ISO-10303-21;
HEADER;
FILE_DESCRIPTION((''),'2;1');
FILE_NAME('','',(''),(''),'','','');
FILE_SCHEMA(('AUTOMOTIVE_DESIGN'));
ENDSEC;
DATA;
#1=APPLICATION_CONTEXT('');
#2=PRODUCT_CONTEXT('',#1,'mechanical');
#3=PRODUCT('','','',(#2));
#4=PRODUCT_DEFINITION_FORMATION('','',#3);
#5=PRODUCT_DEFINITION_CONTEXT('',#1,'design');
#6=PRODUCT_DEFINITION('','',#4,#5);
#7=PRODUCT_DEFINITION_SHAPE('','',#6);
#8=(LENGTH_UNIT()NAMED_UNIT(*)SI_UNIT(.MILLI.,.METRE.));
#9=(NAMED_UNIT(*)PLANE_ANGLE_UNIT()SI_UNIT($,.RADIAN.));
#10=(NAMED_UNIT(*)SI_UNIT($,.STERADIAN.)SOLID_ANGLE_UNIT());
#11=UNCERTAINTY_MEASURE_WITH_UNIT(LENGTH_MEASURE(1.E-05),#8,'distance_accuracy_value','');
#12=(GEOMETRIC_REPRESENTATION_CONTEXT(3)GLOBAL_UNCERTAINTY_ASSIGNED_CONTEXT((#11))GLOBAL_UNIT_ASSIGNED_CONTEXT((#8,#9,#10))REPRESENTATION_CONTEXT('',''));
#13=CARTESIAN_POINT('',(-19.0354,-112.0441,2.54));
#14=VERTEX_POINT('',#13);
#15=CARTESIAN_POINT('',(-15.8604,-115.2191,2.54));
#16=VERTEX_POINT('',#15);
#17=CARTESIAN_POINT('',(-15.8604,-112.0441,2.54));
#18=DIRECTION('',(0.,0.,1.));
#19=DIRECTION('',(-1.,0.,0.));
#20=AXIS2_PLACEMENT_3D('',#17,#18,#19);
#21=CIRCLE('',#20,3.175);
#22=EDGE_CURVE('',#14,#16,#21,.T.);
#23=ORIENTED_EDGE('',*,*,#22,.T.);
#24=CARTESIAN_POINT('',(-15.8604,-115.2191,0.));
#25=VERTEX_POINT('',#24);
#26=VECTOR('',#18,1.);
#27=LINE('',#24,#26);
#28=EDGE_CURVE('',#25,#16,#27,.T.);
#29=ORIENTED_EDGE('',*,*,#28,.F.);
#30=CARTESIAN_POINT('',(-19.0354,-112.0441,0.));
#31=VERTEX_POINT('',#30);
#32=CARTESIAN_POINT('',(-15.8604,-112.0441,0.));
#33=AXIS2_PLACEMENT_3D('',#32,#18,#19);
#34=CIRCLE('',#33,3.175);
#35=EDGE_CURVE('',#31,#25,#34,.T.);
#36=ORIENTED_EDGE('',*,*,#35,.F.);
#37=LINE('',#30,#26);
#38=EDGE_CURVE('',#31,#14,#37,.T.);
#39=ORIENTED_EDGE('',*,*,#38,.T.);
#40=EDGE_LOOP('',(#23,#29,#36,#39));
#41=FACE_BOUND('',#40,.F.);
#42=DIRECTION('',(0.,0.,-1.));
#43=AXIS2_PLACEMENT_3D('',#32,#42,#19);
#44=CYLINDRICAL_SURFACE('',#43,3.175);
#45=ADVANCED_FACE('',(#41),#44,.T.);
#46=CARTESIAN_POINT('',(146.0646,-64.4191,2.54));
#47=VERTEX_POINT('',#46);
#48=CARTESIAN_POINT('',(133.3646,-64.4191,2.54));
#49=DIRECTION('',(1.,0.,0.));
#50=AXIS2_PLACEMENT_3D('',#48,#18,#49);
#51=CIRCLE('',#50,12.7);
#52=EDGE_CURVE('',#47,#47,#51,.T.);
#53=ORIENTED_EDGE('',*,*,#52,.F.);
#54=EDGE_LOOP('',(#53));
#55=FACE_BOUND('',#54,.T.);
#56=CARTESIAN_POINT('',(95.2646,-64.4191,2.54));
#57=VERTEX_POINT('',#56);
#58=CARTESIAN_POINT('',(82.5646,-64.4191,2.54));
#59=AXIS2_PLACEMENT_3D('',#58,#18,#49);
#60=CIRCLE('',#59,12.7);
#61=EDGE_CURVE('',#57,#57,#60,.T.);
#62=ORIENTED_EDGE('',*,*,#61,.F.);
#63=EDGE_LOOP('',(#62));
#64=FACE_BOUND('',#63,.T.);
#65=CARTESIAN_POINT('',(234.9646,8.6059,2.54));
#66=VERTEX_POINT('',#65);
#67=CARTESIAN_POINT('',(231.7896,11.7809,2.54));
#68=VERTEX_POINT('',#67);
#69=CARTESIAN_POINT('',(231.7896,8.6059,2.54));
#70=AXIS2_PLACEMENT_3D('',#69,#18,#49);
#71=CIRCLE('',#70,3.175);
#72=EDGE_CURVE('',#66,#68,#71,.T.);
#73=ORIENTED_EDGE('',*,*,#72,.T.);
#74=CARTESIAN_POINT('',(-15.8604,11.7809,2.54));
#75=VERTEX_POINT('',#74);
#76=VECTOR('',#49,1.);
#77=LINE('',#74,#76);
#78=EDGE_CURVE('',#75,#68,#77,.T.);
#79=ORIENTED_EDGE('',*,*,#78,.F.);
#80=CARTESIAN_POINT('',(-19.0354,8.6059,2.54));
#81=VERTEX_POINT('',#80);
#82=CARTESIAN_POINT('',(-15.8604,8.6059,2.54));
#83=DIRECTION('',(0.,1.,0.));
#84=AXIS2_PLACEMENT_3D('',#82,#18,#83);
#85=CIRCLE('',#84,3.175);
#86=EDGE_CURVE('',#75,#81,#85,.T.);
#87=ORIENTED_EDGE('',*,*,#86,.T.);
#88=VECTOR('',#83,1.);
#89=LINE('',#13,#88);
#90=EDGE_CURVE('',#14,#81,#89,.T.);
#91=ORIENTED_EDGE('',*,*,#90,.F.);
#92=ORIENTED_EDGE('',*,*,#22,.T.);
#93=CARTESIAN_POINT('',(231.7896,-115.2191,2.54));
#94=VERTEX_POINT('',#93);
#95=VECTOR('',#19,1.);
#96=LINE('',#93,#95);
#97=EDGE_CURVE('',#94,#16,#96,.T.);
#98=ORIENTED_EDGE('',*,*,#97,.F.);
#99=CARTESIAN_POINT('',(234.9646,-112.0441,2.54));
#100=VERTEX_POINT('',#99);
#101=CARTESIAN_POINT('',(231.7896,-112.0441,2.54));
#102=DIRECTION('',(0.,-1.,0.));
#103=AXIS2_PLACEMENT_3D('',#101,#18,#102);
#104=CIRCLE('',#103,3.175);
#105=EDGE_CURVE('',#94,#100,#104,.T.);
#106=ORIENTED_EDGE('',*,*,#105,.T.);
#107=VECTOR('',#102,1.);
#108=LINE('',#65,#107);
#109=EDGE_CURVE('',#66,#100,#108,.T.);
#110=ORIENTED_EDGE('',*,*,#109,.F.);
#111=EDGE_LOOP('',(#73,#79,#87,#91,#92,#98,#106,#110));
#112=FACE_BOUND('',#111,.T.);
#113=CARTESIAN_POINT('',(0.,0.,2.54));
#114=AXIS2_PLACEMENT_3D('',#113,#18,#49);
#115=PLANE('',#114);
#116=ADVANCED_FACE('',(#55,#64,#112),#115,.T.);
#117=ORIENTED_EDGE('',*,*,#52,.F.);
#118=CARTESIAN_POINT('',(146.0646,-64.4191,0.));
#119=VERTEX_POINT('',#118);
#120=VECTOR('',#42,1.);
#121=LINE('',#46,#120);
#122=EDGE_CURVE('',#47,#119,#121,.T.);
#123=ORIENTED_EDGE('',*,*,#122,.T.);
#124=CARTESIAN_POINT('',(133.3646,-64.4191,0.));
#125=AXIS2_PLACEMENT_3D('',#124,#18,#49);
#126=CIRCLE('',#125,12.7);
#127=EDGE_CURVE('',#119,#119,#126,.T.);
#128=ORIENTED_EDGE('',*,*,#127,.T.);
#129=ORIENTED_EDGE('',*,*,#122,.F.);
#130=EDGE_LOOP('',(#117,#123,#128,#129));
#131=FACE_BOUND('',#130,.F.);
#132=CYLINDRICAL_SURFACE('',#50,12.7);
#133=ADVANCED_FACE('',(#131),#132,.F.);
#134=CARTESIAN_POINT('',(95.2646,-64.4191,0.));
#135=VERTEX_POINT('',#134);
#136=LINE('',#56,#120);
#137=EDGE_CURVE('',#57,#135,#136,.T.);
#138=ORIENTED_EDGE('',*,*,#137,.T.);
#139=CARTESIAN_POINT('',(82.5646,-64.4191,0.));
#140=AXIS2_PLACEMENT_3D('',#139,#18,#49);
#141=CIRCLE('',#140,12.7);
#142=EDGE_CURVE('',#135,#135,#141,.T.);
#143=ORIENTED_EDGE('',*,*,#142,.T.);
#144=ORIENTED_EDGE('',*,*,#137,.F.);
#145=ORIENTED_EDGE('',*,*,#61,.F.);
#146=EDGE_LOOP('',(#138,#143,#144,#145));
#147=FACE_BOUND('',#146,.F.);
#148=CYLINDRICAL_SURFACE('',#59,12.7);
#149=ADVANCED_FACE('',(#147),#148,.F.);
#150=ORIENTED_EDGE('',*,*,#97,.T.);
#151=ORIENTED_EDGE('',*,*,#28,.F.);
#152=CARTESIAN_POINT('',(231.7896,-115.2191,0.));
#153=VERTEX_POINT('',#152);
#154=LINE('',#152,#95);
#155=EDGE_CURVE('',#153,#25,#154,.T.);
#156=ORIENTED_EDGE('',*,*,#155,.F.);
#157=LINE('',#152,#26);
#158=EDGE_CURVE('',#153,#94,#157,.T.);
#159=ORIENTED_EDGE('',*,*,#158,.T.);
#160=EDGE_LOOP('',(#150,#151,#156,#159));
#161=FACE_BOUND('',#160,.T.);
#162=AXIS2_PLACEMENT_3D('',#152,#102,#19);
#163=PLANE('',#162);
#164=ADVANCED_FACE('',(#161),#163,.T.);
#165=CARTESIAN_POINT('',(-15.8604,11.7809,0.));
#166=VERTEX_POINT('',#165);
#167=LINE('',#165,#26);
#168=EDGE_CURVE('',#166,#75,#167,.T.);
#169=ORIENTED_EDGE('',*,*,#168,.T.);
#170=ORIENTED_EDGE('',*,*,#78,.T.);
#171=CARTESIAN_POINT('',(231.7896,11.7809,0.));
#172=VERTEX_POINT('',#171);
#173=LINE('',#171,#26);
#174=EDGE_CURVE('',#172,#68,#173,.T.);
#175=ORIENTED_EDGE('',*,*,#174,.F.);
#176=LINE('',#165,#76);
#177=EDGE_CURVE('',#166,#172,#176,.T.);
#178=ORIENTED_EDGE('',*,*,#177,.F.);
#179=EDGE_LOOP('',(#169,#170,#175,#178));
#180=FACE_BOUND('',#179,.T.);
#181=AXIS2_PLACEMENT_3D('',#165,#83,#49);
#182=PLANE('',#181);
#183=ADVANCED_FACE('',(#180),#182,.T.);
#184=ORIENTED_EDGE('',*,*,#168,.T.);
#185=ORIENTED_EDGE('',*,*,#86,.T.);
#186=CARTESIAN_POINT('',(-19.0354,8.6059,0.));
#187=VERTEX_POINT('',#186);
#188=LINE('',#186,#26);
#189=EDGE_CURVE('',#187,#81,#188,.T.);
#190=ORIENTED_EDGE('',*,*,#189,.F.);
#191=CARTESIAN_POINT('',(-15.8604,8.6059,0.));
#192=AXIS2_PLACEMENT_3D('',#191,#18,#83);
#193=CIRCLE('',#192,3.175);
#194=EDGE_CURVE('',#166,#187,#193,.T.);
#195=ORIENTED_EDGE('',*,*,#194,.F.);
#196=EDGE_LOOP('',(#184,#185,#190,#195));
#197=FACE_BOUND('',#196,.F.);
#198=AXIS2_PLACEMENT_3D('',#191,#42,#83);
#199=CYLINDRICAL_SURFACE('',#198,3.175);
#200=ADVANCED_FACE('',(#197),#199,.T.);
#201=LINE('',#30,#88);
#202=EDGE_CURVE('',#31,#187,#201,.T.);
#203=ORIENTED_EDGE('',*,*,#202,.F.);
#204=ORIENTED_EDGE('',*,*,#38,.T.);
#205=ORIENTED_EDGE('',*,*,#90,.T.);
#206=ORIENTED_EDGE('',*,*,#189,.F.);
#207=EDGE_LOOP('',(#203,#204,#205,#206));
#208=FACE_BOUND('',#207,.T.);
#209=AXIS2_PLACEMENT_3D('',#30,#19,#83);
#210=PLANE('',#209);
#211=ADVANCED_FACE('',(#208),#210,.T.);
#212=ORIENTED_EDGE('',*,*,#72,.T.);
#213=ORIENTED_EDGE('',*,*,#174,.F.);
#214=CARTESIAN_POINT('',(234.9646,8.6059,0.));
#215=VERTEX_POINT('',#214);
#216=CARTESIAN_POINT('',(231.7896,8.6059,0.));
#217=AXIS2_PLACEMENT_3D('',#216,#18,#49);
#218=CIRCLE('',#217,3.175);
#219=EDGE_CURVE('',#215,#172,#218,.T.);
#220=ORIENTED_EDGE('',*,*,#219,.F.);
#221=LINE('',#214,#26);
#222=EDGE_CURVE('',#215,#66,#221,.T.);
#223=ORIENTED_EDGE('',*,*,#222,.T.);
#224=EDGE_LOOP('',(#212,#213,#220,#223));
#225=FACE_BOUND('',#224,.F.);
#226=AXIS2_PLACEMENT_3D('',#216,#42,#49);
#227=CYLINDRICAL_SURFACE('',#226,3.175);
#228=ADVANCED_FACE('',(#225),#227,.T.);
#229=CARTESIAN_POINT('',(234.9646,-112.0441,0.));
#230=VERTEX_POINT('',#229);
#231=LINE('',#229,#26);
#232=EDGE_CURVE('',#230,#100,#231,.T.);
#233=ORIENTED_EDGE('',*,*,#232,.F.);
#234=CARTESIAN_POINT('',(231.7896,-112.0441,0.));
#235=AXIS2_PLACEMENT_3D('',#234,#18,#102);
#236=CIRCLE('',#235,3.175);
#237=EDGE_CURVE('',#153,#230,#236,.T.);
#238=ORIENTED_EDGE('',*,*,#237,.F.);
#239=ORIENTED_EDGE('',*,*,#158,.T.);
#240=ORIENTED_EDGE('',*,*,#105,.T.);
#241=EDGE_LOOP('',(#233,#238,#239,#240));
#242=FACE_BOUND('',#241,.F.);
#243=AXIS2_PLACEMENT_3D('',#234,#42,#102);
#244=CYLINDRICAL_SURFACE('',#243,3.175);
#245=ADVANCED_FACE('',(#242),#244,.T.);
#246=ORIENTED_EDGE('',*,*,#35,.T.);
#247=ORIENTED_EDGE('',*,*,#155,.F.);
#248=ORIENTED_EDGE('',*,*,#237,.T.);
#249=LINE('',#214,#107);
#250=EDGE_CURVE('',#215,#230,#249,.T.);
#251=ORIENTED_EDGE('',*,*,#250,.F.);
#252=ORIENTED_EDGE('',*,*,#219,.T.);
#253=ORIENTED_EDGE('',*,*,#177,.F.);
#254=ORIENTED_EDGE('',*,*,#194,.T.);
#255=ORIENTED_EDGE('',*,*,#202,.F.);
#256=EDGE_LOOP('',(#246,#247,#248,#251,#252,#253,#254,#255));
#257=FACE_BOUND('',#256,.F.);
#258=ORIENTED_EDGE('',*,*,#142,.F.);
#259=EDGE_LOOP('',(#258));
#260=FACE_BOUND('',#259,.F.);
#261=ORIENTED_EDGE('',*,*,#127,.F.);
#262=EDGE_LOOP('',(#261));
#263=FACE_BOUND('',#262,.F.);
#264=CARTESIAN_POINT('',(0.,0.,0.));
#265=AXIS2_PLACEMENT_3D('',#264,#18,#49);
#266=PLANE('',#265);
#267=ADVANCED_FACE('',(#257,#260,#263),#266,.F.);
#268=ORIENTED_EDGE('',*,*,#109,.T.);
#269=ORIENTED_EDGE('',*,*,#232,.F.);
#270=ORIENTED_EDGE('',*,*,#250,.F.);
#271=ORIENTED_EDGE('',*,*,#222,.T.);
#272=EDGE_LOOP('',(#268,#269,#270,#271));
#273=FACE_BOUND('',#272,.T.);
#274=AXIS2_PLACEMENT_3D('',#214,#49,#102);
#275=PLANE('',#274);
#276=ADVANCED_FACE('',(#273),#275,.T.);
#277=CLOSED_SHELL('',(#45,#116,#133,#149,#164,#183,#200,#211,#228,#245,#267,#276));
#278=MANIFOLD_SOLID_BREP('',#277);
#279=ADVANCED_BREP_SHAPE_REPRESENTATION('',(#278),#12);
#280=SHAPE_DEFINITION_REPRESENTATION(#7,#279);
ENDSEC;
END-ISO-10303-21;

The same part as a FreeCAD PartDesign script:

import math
import FreeCAD as App
import Part
import Sketcher

V = App.Vector
Q = App.Units.Quantity

doc = App.newDocument("Part")
params = doc.addObject("Spreadsheet::Sheet", "Params")
for row, (alias, value) in enumerate([
    ("sketch1_radius", "0.125 in"),
    ("sketch1_width", "9.75 in"),
    ("pad1_length", "0.1 in"),
    ("sketch2_diameter", "1 in"),
    ("pocket1_length", "2 in"),
], start=1):
    params.set(f"A{row}", alias)
    params.set(f"B{row}", "=" + value)
    params.setAlias(f"B{row}", alias)

body = doc.addObject("PartDesign::Body", "Body")

# Sketch on XY plane
sketch1 = doc.addObject("Sketcher::SketchObject", "Sketch")
body.addObject(sketch1)
sketch1.AttachmentSupport = (doc.XY_Plane, [""])
sketch1.MapMode = "FlatFace"
sketch1.addGeometry(Part.LineSegment(V(231.8, 11.8, 0), V(-15.9, 11.8, 0)), False)
sketch1.addGeometry(Part.ArcOfCircle(Part.Circle(V(-15.9, 8.6, 0), V(0, 0, 1), 3.2), math.radians(90), math.radians(180)), False)
sketch1.addGeometry(Part.LineSegment(V(-19, 8.6, 0), V(-19, -112, 0)), False)
sketch1.addGeometry(Part.ArcOfCircle(Part.Circle(V(-15.9, -112, 0), V(0, 0, 1), 3.2), math.radians(180), math.radians(270)), False)
sketch1.addGeometry(Part.LineSegment(V(-15.9, -115.2, 0), V(231.8, -115.2, 0)), False)
sketch1.addGeometry(Part.ArcOfCircle(Part.Circle(V(231.8, -112, 0), V(0, 0, 1), 3.2), math.radians(-90), math.radians(0)), False)
sketch1.addGeometry(Part.LineSegment(V(235, -112, 0), V(235, 8.6, 0)), False)
sketch1.addGeometry(Part.ArcOfCircle(Part.Circle(V(231.8, 8.6, 0), V(0, 0, 1), 3.2), math.radians(0), math.radians(90)), False)
sketch1.addConstraint(Sketcher.Constraint("Tangent", 0, 2, 1, 1))
sketch1.addConstraint(Sketcher.Constraint("Tangent", 1, 2, 2, 1))
sketch1.addConstraint(Sketcher.Constraint("Tangent", 2, 2, 3, 1))
sketch1.addConstraint(Sketcher.Constraint("Tangent", 3, 2, 4, 1))
sketch1.addConstraint(Sketcher.Constraint("Tangent", 4, 2, 5, 1))
sketch1.addConstraint(Sketcher.Constraint("Tangent", 5, 2, 6, 1))
sketch1.addConstraint(Sketcher.Constraint("Tangent", 6, 2, 7, 1))
sketch1.addConstraint(Sketcher.Constraint("Tangent", 7, 2, 0, 1))
sketch1.addConstraint(Sketcher.Constraint("Horizontal", 0))
sketch1.addConstraint(Sketcher.Constraint("Vertical", 2))
sketch1.addConstraint(Sketcher.Constraint("Horizontal", 4))
sketch1.addConstraint(Sketcher.Constraint("Vertical", 6))
sketch1.addConstraint(Sketcher.Constraint("Equal", 1, 3))
sketch1.addConstraint(Sketcher.Constraint("Equal", 3, 5))
sketch1.addConstraint(Sketcher.Constraint("Equal", 5, 7))
sketch1.addConstraint(Sketcher.Constraint("Radius", 1, Q("0.125 in")))
sketch1.addConstraint(Sketcher.Constraint("DistanceY", 3, 2, 0, 2, Q("5 in")))
sketch1.addConstraint(Sketcher.Constraint("DistanceX", 0, 2, 0, 1, Q("9.75 in")))
sketch1.addConstraint(Sketcher.Constraint("DistanceX", 1, 3, -1, 1, 15.8604))
sketch1.addConstraint(Sketcher.Constraint("DistanceY", -1, 1, 1, 3, 8.606))
sketch1.setExpression("Constraints[15]", "Params.sketch1_radius")
sketch1.setExpression("Constraints[17]", "Params.sketch1_width")
pad1 = doc.addObject("PartDesign::Pad", "Pad")
body.addObject(pad1)
pad1.Profile = sketch1
pad1.setExpression("Length", "Params.pad1_length")

# Sketch on XY plane
sketch2 = doc.addObject("Sketcher::SketchObject", "Sketch001")
body.addObject(sketch2)
sketch2.AttachmentSupport = (doc.XY_Plane, [""])
sketch2.MapMode = "FlatFace"
sketch2.AttachmentOffset = App.Placement(V(0, 0, 0.1 * 25.4), App.Rotation())
sketch2.addGeometry(Part.Circle(V(83, -64, 0), V(0, 0, 1), 13), False)
sketch2.addGeometry(Part.Circle(V(133, -64, 0), V(0, 0, 1), 13), False)
sketch2.addConstraint(Sketcher.Constraint("Equal", 0, 1))
sketch2.addConstraint(Sketcher.Constraint("Horizontal", 0, 3, 1, 3))
sketch2.addConstraint(Sketcher.Constraint("Diameter", 0, Q("1 in")))
sketch2.addConstraint(Sketcher.Constraint("DistanceX", 0, 3, 1, 3, Q("2 in")))
sketch2.addConstraint(Sketcher.Constraint("DistanceX", -1, 1, 0, 3, 82.5646))
sketch2.addConstraint(Sketcher.Constraint("DistanceY", 0, 3, -1, 1, 64.419))
sketch2.setExpression("Constraints[2]", "Params.sketch2_diameter")
pocket1 = doc.addObject("PartDesign::Pocket", "Pocket")
body.addObject(pocket1)
pocket1.Profile = sketch2
pocket1.setExpression("Length", "Params.pocket1_length")

doc.recompute()
